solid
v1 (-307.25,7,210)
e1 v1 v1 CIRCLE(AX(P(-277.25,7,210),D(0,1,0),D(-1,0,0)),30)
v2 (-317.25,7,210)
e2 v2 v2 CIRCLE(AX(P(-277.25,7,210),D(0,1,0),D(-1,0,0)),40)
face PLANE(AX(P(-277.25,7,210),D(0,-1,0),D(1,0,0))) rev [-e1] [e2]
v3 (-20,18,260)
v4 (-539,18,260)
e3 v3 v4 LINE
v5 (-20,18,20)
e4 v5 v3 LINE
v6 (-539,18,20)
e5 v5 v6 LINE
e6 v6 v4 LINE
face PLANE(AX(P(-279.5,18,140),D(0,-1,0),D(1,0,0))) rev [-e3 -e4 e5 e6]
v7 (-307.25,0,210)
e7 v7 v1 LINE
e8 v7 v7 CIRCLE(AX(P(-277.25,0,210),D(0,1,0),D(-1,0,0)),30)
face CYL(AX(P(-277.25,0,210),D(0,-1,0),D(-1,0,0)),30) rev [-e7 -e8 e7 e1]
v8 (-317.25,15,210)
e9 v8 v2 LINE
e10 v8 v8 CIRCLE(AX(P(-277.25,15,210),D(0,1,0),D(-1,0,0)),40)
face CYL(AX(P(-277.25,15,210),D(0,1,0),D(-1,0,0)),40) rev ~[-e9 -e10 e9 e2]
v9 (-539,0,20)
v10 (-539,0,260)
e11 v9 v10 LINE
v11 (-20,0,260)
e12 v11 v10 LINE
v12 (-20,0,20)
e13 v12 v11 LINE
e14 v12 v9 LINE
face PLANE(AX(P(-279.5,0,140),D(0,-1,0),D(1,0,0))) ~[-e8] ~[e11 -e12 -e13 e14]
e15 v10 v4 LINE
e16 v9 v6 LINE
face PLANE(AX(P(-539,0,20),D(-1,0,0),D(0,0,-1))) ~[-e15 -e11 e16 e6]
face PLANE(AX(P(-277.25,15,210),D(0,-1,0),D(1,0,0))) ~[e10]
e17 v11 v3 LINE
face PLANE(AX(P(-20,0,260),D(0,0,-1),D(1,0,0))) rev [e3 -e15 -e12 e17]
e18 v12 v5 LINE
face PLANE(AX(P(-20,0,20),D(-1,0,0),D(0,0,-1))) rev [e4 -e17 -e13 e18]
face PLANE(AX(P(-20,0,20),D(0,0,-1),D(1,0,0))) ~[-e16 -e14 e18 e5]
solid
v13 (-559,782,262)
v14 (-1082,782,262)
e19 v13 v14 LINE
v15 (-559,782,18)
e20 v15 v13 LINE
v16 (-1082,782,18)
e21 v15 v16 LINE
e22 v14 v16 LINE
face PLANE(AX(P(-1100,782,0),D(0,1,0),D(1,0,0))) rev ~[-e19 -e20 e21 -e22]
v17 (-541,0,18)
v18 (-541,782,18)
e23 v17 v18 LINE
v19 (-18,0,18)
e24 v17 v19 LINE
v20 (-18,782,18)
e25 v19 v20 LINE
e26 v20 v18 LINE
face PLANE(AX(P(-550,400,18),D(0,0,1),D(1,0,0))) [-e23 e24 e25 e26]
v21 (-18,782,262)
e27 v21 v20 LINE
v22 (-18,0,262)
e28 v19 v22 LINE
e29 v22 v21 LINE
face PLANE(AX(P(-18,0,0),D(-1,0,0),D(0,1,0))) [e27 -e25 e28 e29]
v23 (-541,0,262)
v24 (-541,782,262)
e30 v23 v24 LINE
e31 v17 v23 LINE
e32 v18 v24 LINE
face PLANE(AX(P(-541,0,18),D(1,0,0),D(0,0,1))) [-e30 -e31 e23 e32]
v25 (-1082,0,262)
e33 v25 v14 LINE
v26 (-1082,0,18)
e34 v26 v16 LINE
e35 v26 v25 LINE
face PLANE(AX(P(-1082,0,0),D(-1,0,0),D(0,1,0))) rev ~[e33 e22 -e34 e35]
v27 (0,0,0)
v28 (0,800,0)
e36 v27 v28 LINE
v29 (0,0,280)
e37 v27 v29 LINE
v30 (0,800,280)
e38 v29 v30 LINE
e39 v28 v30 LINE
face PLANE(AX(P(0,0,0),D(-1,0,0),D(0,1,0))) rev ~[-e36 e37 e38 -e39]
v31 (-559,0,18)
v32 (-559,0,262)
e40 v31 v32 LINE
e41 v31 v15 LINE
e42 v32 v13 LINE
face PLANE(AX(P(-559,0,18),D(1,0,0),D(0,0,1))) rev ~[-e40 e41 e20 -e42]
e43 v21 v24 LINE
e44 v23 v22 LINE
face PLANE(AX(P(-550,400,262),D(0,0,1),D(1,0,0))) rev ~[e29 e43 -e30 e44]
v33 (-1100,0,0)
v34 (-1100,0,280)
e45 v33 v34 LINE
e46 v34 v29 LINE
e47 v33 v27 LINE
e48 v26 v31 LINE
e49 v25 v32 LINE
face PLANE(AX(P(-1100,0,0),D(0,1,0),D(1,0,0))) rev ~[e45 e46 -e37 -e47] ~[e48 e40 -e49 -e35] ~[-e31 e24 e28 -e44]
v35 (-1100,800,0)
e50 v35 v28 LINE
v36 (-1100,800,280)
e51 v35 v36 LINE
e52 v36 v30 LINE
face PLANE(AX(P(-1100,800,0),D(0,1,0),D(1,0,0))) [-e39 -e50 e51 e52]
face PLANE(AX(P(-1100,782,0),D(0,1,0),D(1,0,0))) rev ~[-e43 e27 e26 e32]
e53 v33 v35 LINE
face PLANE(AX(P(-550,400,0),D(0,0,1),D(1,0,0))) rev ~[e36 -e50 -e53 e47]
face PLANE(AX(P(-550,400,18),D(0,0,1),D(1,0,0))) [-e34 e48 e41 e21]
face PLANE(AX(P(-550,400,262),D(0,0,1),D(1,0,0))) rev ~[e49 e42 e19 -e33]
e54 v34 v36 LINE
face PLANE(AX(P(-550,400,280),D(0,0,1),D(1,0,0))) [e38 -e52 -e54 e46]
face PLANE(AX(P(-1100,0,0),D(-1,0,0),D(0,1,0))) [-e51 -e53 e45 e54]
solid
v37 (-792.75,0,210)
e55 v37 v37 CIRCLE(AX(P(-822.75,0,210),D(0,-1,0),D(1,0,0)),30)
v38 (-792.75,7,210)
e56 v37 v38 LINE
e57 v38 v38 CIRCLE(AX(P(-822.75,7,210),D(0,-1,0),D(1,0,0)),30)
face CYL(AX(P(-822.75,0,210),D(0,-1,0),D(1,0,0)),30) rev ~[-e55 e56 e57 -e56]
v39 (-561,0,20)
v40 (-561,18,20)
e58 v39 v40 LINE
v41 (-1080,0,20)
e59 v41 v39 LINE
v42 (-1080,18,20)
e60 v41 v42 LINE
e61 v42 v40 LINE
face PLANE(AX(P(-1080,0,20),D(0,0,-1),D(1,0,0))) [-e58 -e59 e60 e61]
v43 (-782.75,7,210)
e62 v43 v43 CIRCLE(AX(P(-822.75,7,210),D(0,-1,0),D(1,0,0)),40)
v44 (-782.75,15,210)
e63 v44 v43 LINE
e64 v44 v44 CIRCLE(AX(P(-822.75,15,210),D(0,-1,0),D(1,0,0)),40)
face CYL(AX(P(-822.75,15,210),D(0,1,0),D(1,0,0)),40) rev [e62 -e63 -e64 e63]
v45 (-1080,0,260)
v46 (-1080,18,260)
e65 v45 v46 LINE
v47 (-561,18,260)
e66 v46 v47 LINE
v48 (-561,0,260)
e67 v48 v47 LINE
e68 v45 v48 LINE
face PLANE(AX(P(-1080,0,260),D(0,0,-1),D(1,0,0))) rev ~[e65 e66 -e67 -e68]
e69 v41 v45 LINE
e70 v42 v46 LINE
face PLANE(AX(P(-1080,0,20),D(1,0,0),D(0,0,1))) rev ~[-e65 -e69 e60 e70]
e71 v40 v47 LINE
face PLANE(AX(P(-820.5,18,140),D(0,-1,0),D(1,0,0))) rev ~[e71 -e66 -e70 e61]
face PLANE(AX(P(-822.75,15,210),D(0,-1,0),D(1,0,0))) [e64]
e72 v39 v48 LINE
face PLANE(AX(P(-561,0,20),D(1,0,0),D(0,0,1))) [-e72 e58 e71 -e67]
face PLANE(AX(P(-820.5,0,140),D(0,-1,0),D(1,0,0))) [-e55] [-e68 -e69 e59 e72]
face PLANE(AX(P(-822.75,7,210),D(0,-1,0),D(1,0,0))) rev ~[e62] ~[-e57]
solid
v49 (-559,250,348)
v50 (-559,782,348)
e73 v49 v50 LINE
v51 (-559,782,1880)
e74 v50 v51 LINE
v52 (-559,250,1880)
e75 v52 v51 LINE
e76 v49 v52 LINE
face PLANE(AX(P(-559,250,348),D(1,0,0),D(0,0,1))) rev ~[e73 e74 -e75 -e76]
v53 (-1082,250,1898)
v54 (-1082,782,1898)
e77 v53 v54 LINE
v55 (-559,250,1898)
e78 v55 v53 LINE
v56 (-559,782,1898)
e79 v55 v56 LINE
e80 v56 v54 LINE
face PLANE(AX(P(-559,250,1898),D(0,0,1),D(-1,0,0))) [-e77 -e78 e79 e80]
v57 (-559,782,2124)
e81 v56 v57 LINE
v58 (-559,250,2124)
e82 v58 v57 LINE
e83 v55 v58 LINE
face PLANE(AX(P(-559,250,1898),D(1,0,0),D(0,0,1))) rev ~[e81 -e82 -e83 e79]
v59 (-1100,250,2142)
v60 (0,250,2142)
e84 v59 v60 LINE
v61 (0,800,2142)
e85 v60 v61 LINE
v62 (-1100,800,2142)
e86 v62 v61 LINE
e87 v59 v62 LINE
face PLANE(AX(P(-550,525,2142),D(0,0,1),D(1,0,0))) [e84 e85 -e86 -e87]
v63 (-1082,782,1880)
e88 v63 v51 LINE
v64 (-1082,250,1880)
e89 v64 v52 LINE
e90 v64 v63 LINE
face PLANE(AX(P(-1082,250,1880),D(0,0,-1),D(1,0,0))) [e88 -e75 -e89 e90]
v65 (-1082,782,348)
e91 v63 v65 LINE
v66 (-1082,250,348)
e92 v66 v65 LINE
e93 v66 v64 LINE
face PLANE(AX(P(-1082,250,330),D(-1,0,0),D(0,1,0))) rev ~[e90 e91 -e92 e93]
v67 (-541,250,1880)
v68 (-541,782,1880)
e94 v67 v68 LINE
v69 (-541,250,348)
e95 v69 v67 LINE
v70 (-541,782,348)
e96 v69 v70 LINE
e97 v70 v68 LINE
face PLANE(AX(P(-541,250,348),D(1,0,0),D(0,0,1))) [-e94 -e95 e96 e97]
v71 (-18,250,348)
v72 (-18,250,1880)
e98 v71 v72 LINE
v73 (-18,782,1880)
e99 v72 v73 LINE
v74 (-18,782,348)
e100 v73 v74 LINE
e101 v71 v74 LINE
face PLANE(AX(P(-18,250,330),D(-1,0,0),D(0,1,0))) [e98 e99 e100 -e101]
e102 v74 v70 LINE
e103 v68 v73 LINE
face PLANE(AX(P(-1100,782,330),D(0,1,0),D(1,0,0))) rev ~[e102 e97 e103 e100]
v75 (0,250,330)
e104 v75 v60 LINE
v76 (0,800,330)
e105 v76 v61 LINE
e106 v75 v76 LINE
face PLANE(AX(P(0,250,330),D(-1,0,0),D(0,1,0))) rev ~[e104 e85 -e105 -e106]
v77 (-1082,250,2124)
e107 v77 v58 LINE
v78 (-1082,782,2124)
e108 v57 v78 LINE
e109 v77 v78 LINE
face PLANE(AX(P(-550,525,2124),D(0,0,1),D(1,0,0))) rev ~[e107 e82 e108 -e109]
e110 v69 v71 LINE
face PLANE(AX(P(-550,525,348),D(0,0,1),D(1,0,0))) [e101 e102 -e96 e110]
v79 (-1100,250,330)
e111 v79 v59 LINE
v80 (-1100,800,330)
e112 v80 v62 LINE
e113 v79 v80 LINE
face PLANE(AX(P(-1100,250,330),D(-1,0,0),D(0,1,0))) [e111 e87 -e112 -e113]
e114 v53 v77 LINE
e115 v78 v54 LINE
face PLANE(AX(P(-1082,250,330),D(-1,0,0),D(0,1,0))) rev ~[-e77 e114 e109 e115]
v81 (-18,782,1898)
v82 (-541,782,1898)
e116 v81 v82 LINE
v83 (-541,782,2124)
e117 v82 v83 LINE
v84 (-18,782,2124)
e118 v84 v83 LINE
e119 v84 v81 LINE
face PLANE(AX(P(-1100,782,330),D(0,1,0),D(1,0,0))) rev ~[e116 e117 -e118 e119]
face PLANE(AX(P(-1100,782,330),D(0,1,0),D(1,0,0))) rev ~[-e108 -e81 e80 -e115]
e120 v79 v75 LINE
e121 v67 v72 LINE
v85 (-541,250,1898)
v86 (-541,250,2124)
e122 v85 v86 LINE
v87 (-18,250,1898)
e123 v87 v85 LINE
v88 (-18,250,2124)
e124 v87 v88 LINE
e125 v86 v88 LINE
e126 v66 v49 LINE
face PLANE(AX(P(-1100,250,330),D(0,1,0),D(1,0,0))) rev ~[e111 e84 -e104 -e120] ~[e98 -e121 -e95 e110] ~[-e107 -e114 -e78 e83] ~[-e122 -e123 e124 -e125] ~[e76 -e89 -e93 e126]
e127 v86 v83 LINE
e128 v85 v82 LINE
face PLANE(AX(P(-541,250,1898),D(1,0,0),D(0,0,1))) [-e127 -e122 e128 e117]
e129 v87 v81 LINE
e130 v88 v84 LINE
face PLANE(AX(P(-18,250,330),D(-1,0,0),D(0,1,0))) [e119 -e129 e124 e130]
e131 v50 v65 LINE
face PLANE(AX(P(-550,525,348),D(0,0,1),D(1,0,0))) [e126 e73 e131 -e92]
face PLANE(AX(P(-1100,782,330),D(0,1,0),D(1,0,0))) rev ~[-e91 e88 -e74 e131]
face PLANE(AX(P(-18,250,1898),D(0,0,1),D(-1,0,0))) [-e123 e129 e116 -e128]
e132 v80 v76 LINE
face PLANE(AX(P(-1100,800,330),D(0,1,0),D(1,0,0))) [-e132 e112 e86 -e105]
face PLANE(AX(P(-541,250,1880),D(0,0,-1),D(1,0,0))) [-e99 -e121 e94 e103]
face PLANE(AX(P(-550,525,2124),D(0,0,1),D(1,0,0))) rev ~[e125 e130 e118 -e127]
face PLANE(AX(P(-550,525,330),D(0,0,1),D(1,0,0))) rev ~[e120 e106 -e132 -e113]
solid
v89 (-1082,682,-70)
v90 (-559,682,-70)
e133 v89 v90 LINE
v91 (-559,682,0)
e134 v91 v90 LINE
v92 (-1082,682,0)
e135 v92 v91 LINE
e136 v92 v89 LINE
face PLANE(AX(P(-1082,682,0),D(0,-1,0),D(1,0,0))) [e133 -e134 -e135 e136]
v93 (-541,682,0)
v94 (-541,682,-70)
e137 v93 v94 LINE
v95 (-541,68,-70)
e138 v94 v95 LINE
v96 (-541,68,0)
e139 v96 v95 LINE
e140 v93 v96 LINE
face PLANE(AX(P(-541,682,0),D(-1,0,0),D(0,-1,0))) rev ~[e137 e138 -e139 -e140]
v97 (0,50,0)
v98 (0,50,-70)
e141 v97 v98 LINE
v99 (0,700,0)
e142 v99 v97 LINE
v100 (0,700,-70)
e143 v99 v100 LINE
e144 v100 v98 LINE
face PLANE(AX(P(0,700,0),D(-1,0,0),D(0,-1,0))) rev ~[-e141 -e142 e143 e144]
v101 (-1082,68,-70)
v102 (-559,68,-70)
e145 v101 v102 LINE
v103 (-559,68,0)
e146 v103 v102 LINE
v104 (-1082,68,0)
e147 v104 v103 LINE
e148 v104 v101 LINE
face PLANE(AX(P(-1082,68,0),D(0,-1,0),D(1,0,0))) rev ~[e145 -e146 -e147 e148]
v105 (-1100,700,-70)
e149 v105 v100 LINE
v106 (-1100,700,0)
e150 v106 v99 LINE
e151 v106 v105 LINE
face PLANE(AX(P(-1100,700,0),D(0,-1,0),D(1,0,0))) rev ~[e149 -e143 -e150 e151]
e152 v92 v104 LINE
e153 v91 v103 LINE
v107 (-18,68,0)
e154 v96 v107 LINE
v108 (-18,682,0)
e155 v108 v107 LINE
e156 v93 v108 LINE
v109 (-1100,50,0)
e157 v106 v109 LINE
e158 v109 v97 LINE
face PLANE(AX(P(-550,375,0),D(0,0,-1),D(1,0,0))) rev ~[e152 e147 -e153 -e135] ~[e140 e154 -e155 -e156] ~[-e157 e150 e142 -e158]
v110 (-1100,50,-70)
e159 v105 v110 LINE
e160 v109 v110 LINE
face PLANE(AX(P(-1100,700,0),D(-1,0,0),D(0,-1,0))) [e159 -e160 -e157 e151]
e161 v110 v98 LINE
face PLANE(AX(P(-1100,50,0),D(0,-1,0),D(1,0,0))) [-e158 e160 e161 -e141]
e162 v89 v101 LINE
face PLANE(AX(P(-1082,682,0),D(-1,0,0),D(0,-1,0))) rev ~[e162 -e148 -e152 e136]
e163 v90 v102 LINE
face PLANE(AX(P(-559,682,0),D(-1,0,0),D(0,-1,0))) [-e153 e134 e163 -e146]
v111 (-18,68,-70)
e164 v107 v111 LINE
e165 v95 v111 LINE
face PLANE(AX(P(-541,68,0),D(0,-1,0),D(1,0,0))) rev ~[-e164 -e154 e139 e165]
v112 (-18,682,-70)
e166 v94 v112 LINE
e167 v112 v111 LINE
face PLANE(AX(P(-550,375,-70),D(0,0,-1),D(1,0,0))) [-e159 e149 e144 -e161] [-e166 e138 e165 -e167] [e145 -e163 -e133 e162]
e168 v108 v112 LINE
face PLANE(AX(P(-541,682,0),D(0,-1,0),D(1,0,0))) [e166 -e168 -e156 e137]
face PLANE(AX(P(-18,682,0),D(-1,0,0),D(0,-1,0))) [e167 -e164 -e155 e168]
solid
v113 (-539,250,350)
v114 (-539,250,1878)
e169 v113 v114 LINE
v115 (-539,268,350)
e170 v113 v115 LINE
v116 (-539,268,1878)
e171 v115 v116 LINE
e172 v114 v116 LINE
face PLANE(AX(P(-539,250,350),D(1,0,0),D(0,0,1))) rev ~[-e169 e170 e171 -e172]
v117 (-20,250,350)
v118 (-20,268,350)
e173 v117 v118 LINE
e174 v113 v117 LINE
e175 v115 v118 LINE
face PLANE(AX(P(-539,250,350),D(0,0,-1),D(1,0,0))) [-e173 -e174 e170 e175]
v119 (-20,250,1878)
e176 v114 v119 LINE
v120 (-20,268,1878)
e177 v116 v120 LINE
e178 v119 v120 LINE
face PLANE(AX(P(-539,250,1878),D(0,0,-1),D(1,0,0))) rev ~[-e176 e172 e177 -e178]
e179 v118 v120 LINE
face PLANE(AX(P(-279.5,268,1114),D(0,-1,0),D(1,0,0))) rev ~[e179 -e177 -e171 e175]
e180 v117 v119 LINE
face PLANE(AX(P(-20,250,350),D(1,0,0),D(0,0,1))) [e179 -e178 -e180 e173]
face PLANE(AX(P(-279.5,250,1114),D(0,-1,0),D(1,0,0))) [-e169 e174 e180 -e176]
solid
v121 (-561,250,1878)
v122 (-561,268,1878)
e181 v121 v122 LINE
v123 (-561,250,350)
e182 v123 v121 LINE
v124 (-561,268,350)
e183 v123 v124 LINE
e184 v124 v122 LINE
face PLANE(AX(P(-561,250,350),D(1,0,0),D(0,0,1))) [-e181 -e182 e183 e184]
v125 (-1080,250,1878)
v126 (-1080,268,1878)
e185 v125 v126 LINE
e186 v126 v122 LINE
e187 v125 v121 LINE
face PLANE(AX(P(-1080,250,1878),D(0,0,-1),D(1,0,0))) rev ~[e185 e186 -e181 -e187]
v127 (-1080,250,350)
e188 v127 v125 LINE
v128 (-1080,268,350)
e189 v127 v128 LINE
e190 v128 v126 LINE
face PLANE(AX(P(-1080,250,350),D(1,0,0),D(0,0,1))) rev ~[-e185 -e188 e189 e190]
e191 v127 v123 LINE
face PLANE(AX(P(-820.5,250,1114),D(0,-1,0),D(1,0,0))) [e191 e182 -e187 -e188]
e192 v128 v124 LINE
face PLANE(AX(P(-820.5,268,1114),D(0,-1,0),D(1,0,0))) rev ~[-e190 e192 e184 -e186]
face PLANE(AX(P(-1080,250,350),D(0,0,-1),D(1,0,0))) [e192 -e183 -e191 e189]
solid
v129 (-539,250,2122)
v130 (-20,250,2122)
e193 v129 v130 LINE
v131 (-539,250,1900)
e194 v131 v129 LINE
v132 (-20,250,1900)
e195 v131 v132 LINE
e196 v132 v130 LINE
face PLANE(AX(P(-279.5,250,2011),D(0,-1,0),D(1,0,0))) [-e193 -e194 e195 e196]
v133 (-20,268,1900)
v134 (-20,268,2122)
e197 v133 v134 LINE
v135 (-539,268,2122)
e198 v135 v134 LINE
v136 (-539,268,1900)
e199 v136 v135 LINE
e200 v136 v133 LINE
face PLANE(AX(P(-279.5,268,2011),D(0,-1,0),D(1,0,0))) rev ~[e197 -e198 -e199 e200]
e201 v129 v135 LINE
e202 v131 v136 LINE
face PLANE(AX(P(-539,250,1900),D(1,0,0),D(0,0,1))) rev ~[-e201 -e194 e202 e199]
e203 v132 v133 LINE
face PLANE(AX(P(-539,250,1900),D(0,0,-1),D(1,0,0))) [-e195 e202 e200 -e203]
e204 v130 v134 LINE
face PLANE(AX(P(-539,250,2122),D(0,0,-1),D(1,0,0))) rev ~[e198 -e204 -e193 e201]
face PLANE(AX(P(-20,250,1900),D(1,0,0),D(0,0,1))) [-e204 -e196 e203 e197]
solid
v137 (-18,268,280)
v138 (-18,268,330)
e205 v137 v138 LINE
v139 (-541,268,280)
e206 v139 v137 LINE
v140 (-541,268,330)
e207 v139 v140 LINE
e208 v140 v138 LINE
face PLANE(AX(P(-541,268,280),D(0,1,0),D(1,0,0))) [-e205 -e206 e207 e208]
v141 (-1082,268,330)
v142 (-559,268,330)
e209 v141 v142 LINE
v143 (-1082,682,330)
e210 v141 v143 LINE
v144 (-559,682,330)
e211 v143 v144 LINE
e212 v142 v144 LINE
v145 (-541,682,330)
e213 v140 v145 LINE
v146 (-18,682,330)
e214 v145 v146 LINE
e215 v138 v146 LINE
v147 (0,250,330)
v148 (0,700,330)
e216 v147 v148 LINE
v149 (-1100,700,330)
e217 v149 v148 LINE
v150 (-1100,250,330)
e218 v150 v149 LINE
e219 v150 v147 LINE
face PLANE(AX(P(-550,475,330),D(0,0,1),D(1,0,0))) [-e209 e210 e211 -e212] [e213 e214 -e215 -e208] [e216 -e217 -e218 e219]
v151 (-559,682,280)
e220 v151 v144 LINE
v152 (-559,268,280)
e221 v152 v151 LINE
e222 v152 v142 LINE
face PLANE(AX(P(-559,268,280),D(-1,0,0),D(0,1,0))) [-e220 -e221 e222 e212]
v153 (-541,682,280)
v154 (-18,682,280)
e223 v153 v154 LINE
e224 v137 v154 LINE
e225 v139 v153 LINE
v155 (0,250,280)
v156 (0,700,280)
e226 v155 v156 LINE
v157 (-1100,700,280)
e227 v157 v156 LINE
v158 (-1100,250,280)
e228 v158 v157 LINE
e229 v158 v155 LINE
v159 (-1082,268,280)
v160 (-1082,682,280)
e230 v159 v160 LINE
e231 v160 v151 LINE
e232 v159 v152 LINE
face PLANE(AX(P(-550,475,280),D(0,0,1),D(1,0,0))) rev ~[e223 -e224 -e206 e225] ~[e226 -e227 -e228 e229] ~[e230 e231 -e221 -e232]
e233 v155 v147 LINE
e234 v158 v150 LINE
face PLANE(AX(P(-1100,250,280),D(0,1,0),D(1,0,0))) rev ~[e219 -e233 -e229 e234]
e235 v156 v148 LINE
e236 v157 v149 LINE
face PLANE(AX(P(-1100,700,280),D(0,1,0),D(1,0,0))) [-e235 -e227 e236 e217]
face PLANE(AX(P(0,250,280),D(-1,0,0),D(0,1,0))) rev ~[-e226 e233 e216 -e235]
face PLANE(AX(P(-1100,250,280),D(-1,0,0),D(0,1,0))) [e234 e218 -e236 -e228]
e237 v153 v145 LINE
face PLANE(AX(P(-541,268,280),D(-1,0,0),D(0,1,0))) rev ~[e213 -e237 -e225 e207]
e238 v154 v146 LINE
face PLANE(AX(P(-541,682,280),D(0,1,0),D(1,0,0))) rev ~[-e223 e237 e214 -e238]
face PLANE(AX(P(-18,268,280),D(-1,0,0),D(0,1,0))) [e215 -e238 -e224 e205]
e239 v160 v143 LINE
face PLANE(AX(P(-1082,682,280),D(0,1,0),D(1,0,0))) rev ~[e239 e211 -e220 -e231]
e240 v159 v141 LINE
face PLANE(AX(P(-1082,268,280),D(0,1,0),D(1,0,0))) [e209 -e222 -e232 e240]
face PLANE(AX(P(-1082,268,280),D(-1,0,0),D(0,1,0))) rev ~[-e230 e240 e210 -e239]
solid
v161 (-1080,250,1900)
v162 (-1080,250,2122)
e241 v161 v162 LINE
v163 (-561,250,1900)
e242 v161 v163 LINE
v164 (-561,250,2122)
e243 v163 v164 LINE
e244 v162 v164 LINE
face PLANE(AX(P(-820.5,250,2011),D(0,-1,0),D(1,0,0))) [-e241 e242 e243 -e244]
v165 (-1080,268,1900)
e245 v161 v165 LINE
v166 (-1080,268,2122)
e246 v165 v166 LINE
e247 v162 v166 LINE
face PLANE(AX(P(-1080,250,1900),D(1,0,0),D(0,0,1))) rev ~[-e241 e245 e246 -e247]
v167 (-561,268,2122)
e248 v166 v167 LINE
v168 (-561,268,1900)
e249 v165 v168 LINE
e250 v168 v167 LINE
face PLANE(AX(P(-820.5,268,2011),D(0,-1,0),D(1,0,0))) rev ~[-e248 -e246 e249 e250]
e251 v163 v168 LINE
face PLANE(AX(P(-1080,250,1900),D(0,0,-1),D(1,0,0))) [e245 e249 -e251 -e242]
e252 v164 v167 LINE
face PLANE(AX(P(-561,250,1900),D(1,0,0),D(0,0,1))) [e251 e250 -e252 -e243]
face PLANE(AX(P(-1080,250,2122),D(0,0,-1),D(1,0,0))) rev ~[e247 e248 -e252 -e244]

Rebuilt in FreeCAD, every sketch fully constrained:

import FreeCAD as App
import Part
import Sketcher

V = App.Vector
Q = App.Units.Quantity


def faces_at(feature, points):
    """Names of the faces that lie closest to the given points."""
    faces = feature.Shape.Faces
    near = lambda p: min(range(len(faces)), key=lambda i: faces[i].distToShape(Part.Vertex(*p))[0])
    return sorted({f"Face{near(p) + 1}" for p in points})

doc = App.newDocument("Part")
params = doc.addObject("Spreadsheet::Sheet", "Params")
for row, (alias, value) in enumerate([
    ("sketch1_width", "1100 mm"),
    ("sketch1_height", "800 mm"),
    ("pad1_length", "280 mm"),
    ("thickness_wall", "18 mm"),
    ("sketch2_width", "18 mm"),
    ("sketch2_height", "244 mm"),
    ("sketch3_width", "519 mm"),
    ("sketch3_height", "240 mm"),
    ("pad3_length", "18 mm"),
    ("sketch4_diameter", "60 mm"),
    ("pocket1_length", "15 mm"),
    ("sketch5_diameter", "80 mm"),
    ("pocket2_length", "8 mm"),
    ("sketch6_width", "1100 mm"),
    ("sketch6_width2", "523 mm"),
    ("sketch6_height", "650 mm"),
    ("sketch6_height2", "614 mm"),
    ("pad4_length", "70 mm"),
    ("sketch7_width", "1100 mm"),
    ("sketch7_width2", "523 mm"),
    ("sketch7_height", "450 mm"),
    ("sketch7_height2", "414 mm"),
    ("pad5_length", "50 mm"),
    ("sketch8_width", "1100 mm"),
    ("sketch8_height", "550 mm"),
    ("pad6_length", "1812 mm"),
    ("thickness2_wall", "18 mm"),
    ("sketch9_width", "18 mm"),
    ("sketch9_width2", "523 mm"),
    ("sketch9_height", "1532 mm"),
    ("sketch9_height2", "226 mm"),
    ("sketch10_width", "519 mm"),
    ("sketch10_height", "1528 mm"),
    ("pad8_length", "18 mm"),
    ("sketch11_width", "519 mm"),
    ("sketch11_height", "222 mm"),
    ("pad9_length", "18 mm"),
    ("sketch12_width", "519 mm"),
    ("sketch12_height", "222 mm"),
    ("pad10_length", "18 mm"),
    ("sketch13_width", "519 mm"),
    ("sketch13_height", "1528 mm"),
    ("pad11_length", "18 mm"),
], start=1):
    params.set(f"A{row}", alias)
    params.set(f"B{row}", "=" + value)
    params.setAlias(f"B{row}", alias)

body = doc.addObject("PartDesign::Body", "Body")

sketch1 = doc.addObject("Sketcher::SketchObject", "Sketch")
body.addObject(sketch1)
sketch1.AttachmentSupport = (doc.XY_Plane, [""])
sketch1.MapMode = "FlatFace"
sketch1.addGeometry(Part.LineSegment(V(-1100, 800, 0), V(-1100, 0, 0)), False)
sketch1.addGeometry(Part.LineSegment(V(-1100, 0, 0), V(0, 0, 0)), False)
sketch1.addGeometry(Part.LineSegment(V(0, 0, 0), V(0, 800, 0)), False)
sketch1.addGeometry(Part.LineSegment(V(0, 800, 0), V(-1100, 800, 0)), False)
sketch1.addConstraint(Sketcher.Constraint("Coincident", 0, 2, 1, 1))
sketch1.addConstraint(Sketcher.Constraint("Coincident", 1, 2, 2, 1))
sketch1.addConstraint(Sketcher.Constraint("Coincident", 2, 2, 3, 1))
sketch1.addConstraint(Sketcher.Constraint("Coincident", 3, 2, 0, 1))
sketch1.addConstraint(Sketcher.Constraint("Vertical", 0))
sketch1.addConstraint(Sketcher.Constraint("Horizontal", 1))
sketch1.addConstraint(Sketcher.Constraint("Vertical", 2))
sketch1.addConstraint(Sketcher.Constraint("Horizontal", 3))
sketch1.addConstraint(Sketcher.Constraint("Coincident", 1, 2, -1, 1))
sketch1.addConstraint(Sketcher.Constraint("DistanceX", 1, 1, 1, 2, Q("1100 mm")))
sketch1.addConstraint(Sketcher.Constraint("DistanceY", 0, 2, 0, 1, Q("800 mm")))
sketch1.setExpression("Constraints[9]", "Params.sketch1_width")
sketch1.setExpression("Constraints[10]", "Params.sketch1_height")
pad1 = doc.addObject("PartDesign::Pad", "Pad")
body.addObject(pad1)
pad1.Profile = sketch1
pad1.setExpression("Length", "Params.pad1_length")
doc.recompute()

thickness = doc.addObject("PartDesign::Thickness", "Thickness")
body.addObject(thickness)
thickness.Base = (pad1, faces_at(pad1, [(-550, 0, 140)]))
thickness.setExpression("Value", "Params.thickness_wall")
thickness.Reversed = True
thickness.Join = "Arc"

sketch2 = doc.addObject("Sketcher::SketchObject", "Sketch001")
body.addObject(sketch2)
sketch2.AttachmentSupport = (doc.XZ_Plane, [""])
sketch2.MapMode = "FlatFace"
sketch2.addGeometry(Part.LineSegment(V(-559, 262, 0), V(-559, 18, 0)), False)
sketch2.addGeometry(Part.LineSegment(V(-559, 18, 0), V(-541, 18, 0)), False)
sketch2.addGeometry(Part.LineSegment(V(-541, 18, 0), V(-541, 262, 0)), False)
sketch2.addGeometry(Part.LineSegment(V(-541, 262, 0), V(-559, 262, 0)), False)
sketch2.addConstraint(Sketcher.Constraint("Coincident", 0, 2, 1, 1))
sketch2.addConstraint(Sketcher.Constraint("Coincident", 1, 2, 2, 1))
sketch2.addConstraint(Sketcher.Constraint("Coincident", 2, 2, 3, 1))
sketch2.addConstraint(Sketcher.Constraint("Coincident", 3, 2, 0, 1))
sketch2.addConstraint(Sketcher.Constraint("Vertical", 0))
sketch2.addConstraint(Sketcher.Constraint("Horizontal", 1))
sketch2.addConstraint(Sketcher.Constraint("Vertical", 2))
sketch2.addConstraint(Sketcher.Constraint("Horizontal", 3))
sketch2.addConstraint(Sketcher.Constraint("DistanceX", 1, 1, 1, 2, Q("18 mm")))
sketch2.addConstraint(Sketcher.Constraint("DistanceY", 0, 2, 0, 1, Q("244 mm")))
sketch2.addConstraint(Sketcher.Constraint("DistanceX", 0, 2, -1, 1, Q("559 mm")))
sketch2.addConstraint(Sketcher.Constraint("DistanceY", -1, 1, 0, 2, Q("18 mm")))
sketch2.setExpression("Constraints[8]", "Params.sketch2_width")
sketch2.setExpression("Constraints[9]", "Params.sketch2_height")
pad2 = doc.addObject("PartDesign::Pad", "Pad001")
body.addObject(pad2)
pad2.Profile = sketch2
pad2.Type = "UpToLast"
pad2.Reversed = True
body2 = doc.addObject("PartDesign::Body", "Body001")

sketch3 = doc.addObject("Sketcher::SketchObject", "Sketch002")
body2.addObject(sketch3)
sketch3.AttachmentSupport = (doc.getObject("XZ_Plane001"), [""])
sketch3.MapMode = "FlatFace"
sketch3.addGeometry(Part.LineSegment(V(-1080, 260, 0), V(-1080, 20, 0)), False)
sketch3.addGeometry(Part.LineSegment(V(-1080, 20, 0), V(-561, 20, 0)), False)
sketch3.addGeometry(Part.LineSegment(V(-561, 20, 0), V(-561, 260, 0)), False)
sketch3.addGeometry(Part.LineSegment(V(-561, 260, 0), V(-1080, 260, 0)), False)
sketch3.addConstraint(Sketcher.Constraint("Coincident", 0, 2, 1, 1))
sketch3.addConstraint(Sketcher.Constraint("Coincident", 1, 2, 2, 1))
sketch3.addConstraint(Sketcher.Constraint("Coincident", 2, 2, 3, 1))
sketch3.addConstraint(Sketcher.Constraint("Coincident", 3, 2, 0, 1))
sketch3.addConstraint(Sketcher.Constraint("Vertical", 0))
sketch3.addConstraint(Sketcher.Constraint("Horizontal", 1))
sketch3.addConstraint(Sketcher.Constraint("Vertical", 2))
sketch3.addConstraint(Sketcher.Constraint("Horizontal", 3))
sketch3.addConstraint(Sketcher.Constraint("DistanceX", 1, 1, 1, 2, Q("519 mm")))
sketch3.addConstraint(Sketcher.Constraint("DistanceY", 0, 2, 0, 1, Q("240 mm")))
sketch3.addConstraint(Sketcher.Constraint("DistanceX", 0, 2, -1, 1, Q("1080 mm")))
sketch3.addConstraint(Sketcher.Constraint("DistanceY", -1, 1, 0, 2, Q("20 mm")))
sketch3.setExpression("Constraints[8]", "Params.sketch3_width")
sketch3.setExpression("Constraints[9]", "Params.sketch3_height")
pad3 = doc.addObject("PartDesign::Pad", "Pad002")
body2.addObject(pad3)
pad3.Profile = sketch3
pad3.setExpression("Length", "Params.pad3_length")
pad3.Reversed = True

sketch4 = doc.addObject("Sketcher::SketchObject", "Sketch003")
body2.addObject(sketch4)
sketch4.AttachmentSupport = (doc.getObject("XZ_Plane001"), [""])
sketch4.MapMode = "FlatFace"
sketch4.addGeometry(Part.Circle(V(-822.75, 210, 0), V(0, 0, 1), 30), False)
sketch4.addConstraint(Sketcher.Constraint("Diameter", 0, Q("60 mm")))
sketch4.addConstraint(Sketcher.Constraint("DistanceY", -1, 1, 0, 3, Q("210 mm")))
sketch4.addConstraint(Sketcher.Constraint("DistanceX", 0, 3, -1, 1, Q("822.75 mm")))
sketch4.setExpression("Constraints[0]", "Params.sketch4_diameter")
pocket1 = doc.addObject("PartDesign::Pocket", "Pocket")
body2.addObject(pocket1)
pocket1.Profile = sketch4
pocket1.setExpression("Length", "Params.pocket1_length")

sketch5 = doc.addObject("Sketcher::SketchObject", "Sketch004")
body2.addObject(sketch5)
sketch5.AttachmentSupport = (doc.getObject("XZ_Plane001"), [""])
sketch5.MapMode = "FlatFace"
sketch5.AttachmentOffset = App.Placement(V(0, 0, -15), App.Rotation())
sketch5.addGeometry(Part.Circle(V(-822.75, 210, 0), V(0, 0, 1), 40), False)
sketch5.addConstraint(Sketcher.Constraint("Diameter", 0, Q("80 mm")))
sketch5.addConstraint(Sketcher.Constraint("DistanceY", -1, 1, 0, 3, Q("210 mm")))
sketch5.addConstraint(Sketcher.Constraint("DistanceX", 0, 3, -1, 1, Q("822.75 mm")))
sketch5.setExpression("Constraints[0]", "Params.sketch5_diameter")
pocket2 = doc.addObject("PartDesign::Pocket", "Pocket001")
body2.addObject(pocket2)
pocket2.Profile = sketch5
pocket2.setExpression("Length", "Params.pocket2_length")
pocket2.Reversed = True
body3 = doc.addObject("PartDesign::Body", "Body002")
doc.recompute()

mirroring = doc.addObject("Part::Mirroring", "Mirroring")
mirroring.Source = body2
mirroring.Base = V(-550, 400, 140)
mirroring.Normal = V(1, 0, 0)
body3.BaseFeature = mirroring
doc.recompute()
body4 = doc.addObject("PartDesign::Body", "Body003")

sketch6 = doc.addObject("Sketcher::SketchObject", "Sketch005")
body4.addObject(sketch6)
sketch6.AttachmentSupport = (doc.getObject("XY_Plane003"), [""])
sketch6.MapMode = "FlatFace"
sketch6.addGeometry(Part.LineSegment(V(-1100, 50, 0), V(-1100, 700, 0)), False)
sketch6.addGeometry(Part.LineSegment(V(-1100, 700, 0), V(0, 700, 0)), False)
sketch6.addGeometry(Part.LineSegment(V(0, 700, 0), V(0, 50, 0)), False)
sketch6.addGeometry(Part.LineSegment(V(0, 50, 0), V(-1100, 50, 0)), False)
sketch6.addGeometry(Part.LineSegment(V(-559, 682, 0), V(-1082, 682, 0)), False)
sketch6.addGeometry(Part.LineSegment(V(-1082, 682, 0), V(-1082, 68, 0)), False)
sketch6.addGeometry(Part.LineSegment(V(-1082, 68, 0), V(-559, 68, 0)), False)
sketch6.addGeometry(Part.LineSegment(V(-559, 68, 0), V(-559, 682, 0)), False)
sketch6.addGeometry(Part.LineSegment(V(-18, 682, 0), V(-541, 682, 0)), False)
sketch6.addGeometry(Part.LineSegment(V(-541, 682, 0), V(-541, 68, 0)), False)
sketch6.addGeometry(Part.LineSegment(V(-541, 68, 0), V(-18, 68, 0)), False)
sketch6.addGeometry(Part.LineSegment(V(-18, 68, 0), V(-18, 682, 0)), False)
sketch6.addConstraint(Sketcher.Constraint("Coincident", 0, 2, 1, 1))
sketch6.addConstraint(Sketcher.Constraint("Coincident", 1, 2, 2, 1))
sketch6.addConstraint(Sketcher.Constraint("Coincident", 2, 2, 3, 1))
sketch6.addConstraint(Sketcher.Constraint("Coincident", 3, 2, 0, 1))
sketch6.addConstraint(Sketcher.Constraint("Coincident", 4, 2, 5, 1))
sketch6.addConstraint(Sketcher.Constraint("Coincident", 5, 2, 6, 1))
sketch6.addConstraint(Sketcher.Constraint("Coincident", 6, 2, 7, 1))
sketch6.addConstraint(Sketcher.Constraint("Coincident", 7, 2, 4, 1))
sketch6.addConstraint(Sketcher.Constraint("Coincident", 8, 2, 9, 1))
sketch6.addConstraint(Sketcher.Constraint("Coincident", 9, 2, 10, 1))
sketch6.addConstraint(Sketcher.Constraint("Coincident", 10, 2, 11, 1))
sketch6.addConstraint(Sketcher.Constraint("Coincident", 11, 2, 8, 1))
sketch6.addConstraint(Sketcher.Constraint("Vertical", 0))
sketch6.addConstraint(Sketcher.Constraint("Horizontal", 1))
sketch6.addConstraint(Sketcher.Constraint("Vertical", 2))
sketch6.addConstraint(Sketcher.Constraint("Horizontal", 3))
sketch6.addConstraint(Sketcher.Constraint("Horizontal", 4))
sketch6.addConstraint(Sketcher.Constraint("Vertical", 5))
sketch6.addConstraint(Sketcher.Constraint("Horizontal", 6))
sketch6.addConstraint(Sketcher.Constraint("Vertical", 7))
sketch6.addConstraint(Sketcher.Constraint("Horizontal", 8))
sketch6.addConstraint(Sketcher.Constraint("Vertical", 9))
sketch6.addConstraint(Sketcher.Constraint("Horizontal", 10))
sketch6.addConstraint(Sketcher.Constraint("Vertical", 11))
sketch6.addConstraint(Sketcher.Constraint("PointOnObject", 1, 2, -2))
sketch6.addConstraint(Sketcher.Constraint("Horizontal", 7, 2, 8, 2))
sketch6.addConstraint(Sketcher.Constraint("Horizontal", 6, 2, 9, 2))
sketch6.addConstraint(Sketcher.Constraint("Equal", 6, 8))
sketch6.addConstraint(Sketcher.Constraint("DistanceX", 1, 1, 1, 2, Q("1100 mm")))
sketch6.addConstraint(Sketcher.Constraint("DistanceX", 4, 2, 4, 1, Q("523 mm")))
sketch6.addConstraint(Sketcher.Constraint("DistanceY", 0, 1, 0, 2, Q("650 mm")))
sketch6.addConstraint(Sketcher.Constraint("DistanceY", 5, 2, 5, 1, Q("614 mm")))
sketch6.addConstraint(Sketcher.Constraint("DistanceY", -1, 1, 0, 2, Q("700 mm")))
sketch6.addConstraint(Sketcher.Constraint("DistanceX", 4, 2, -1, 1, Q("1082 mm")))
sketch6.addConstraint(Sketcher.Constraint("DistanceY", -1, 1, 4, 2, Q("682 mm")))
sketch6.addConstraint(Sketcher.Constraint("DistanceX", 8, 2, -1, 1, Q("541 mm")))
sketch6.setExpression("Constraints[28]", "Params.sketch6_width")
sketch6.setExpression("Constraints[29]", "Params.sketch6_width2")
sketch6.setExpression("Constraints[30]", "Params.sketch6_height")
sketch6.setExpression("Constraints[31]", "Params.sketch6_height2")
pad4 = doc.addObject("PartDesign::Pad", "Pad003")
body4.addObject(pad4)
pad4.Profile = sketch6
pad4.setExpression("Length", "Params.pad4_length")
pad4.Reversed = True
body5 = doc.addObject("PartDesign::Body", "Body004")

sketch7 = doc.addObject("Sketcher::SketchObject", "Sketch006")
body5.addObject(sketch7)
sketch7.AttachmentSupport = (doc.getObject("XY_Plane004"), [""])
sketch7.MapMode = "FlatFace"
sketch7.AttachmentOffset = App.Placement(V(0, 0, 280), App.Rotation())
sketch7.addGeometry(Part.LineSegment(V(-1100, 700, 0), V(-1100, 250, 0)), False)
sketch7.addGeometry(Part.LineSegment(V(-1100, 250, 0), V(0, 250, 0)), False)
sketch7.addGeometry(Part.LineSegment(V(0, 250, 0), V(0, 700, 0)), False)
sketch7.addGeometry(Part.LineSegment(V(0, 700, 0), V(-1100, 700, 0)), False)
sketch7.addGeometry(Part.LineSegment(V(-559, 268, 0), V(-1082, 268, 0)), False)
sketch7.addGeometry(Part.LineSegment(V(-1082, 268, 0), V(-1082, 682, 0)), False)
sketch7.addGeometry(Part.LineSegment(V(-1082, 682, 0), V(-559, 682, 0)), False)
sketch7.addGeometry(Part.LineSegment(V(-559, 682, 0), V(-559, 268, 0)), False)
sketch7.addGeometry(Part.LineSegment(V(-18, 268, 0), V(-541, 268, 0)), False)
sketch7.addGeometry(Part.LineSegment(V(-541, 268, 0), V(-541, 682, 0)), False)
sketch7.addGeometry(Part.LineSegment(V(-541, 682, 0), V(-18, 682, 0)), False)
sketch7.addGeometry(Part.LineSegment(V(-18, 682, 0), V(-18, 268, 0)), False)
sketch7.addConstraint(Sketcher.Constraint("Coincident", 0, 2, 1, 1))
sketch7.addConstraint(Sketcher.Constraint("Coincident", 1, 2, 2, 1))
sketch7.addConstraint(Sketcher.Constraint("Coincident", 2, 2, 3, 1))
sketch7.addConstraint(Sketcher.Constraint("Coincident", 3, 2, 0, 1))
sketch7.addConstraint(Sketcher.Constraint("Coincident", 4, 2, 5, 1))
sketch7.addConstraint(Sketcher.Constraint("Coincident", 5, 2, 6, 1))
sketch7.addConstraint(Sketcher.Constraint("Coincident", 6, 2, 7, 1))
sketch7.addConstraint(Sketcher.Constraint("Coincident", 7, 2, 4, 1))
sketch7.addConstraint(Sketcher.Constraint("Coincident", 8, 2, 9, 1))
sketch7.addConstraint(Sketcher.Constraint("Coincident", 9, 2, 10, 1))
sketch7.addConstraint(Sketcher.Constraint("Coincident", 10, 2, 11, 1))
sketch7.addConstraint(Sketcher.Constraint("Coincident", 11, 2, 8, 1))
sketch7.addConstraint(Sketcher.Constraint("Vertical", 0))
sketch7.addConstraint(Sketcher.Constraint("Horizontal", 1))
sketch7.addConstraint(Sketcher.Constraint("Vertical", 2))
sketch7.addConstraint(Sketcher.Constraint("Horizontal", 3))
sketch7.addConstraint(Sketcher.Constraint("Horizontal", 4))
sketch7.addConstraint(Sketcher.Constraint("Vertical", 5))
sketch7.addConstraint(Sketcher.Constraint("Horizontal", 6))
sketch7.addConstraint(Sketcher.Constraint("Vertical", 7))
sketch7.addConstraint(Sketcher.Constraint("Horizontal", 8))
sketch7.addConstraint(Sketcher.Constraint("Vertical", 9))
sketch7.addConstraint(Sketcher.Constraint("Horizontal", 10))
sketch7.addConstraint(Sketcher.Constraint("Vertical", 11))
sketch7.addConstraint(Sketcher.Constraint("PointOnObject", 1, 2, -2))
sketch7.addConstraint(Sketcher.Constraint("Horizontal", 7, 2, 8, 2))
sketch7.addConstraint(Sketcher.Constraint("Horizontal", 6, 2, 9, 2))
sketch7.addConstraint(Sketcher.Constraint("Equal", 6, 8))
sketch7.addConstraint(Sketcher.Constraint("DistanceX", 1, 1, 1, 2, Q("1100 mm")))
sketch7.addConstraint(Sketcher.Constraint("DistanceX", 4, 2, 4, 1, Q("523 mm")))
sketch7.addConstraint(Sketcher.Constraint("DistanceY", 0, 2, 0, 1, Q("450 mm")))
sketch7.addConstraint(Sketcher.Constraint("DistanceY", 5, 1, 5, 2, Q("414 mm")))
sketch7.addConstraint(Sketcher.Constraint("DistanceY", -1, 1, 0, 2, Q("250 mm")))
sketch7.addConstraint(Sketcher.Constraint("DistanceX", 4, 2, -1, 1, Q("1082 mm")))
sketch7.addConstraint(Sketcher.Constraint("DistanceY", -1, 1, 4, 2, Q("268 mm")))
sketch7.addConstraint(Sketcher.Constraint("DistanceX", 8, 2, -1, 1, Q("541 mm")))
sketch7.setExpression("Constraints[28]", "Params.sketch7_width")
sketch7.setExpression("Constraints[29]", "Params.sketch7_width2")
sketch7.setExpression("Constraints[30]", "Params.sketch7_height")
sketch7.setExpression("Constraints[31]", "Params.sketch7_height2")
pad5 = doc.addObject("PartDesign::Pad", "Pad004")
body5.addObject(pad5)
pad5.Profile = sketch7
pad5.setExpression("Length", "Params.pad5_length")
body6 = doc.addObject("PartDesign::Body", "Body005")

sketch8 = doc.addObject("Sketcher::SketchObject", "Sketch007")
body6.addObject(sketch8)
sketch8.AttachmentSupport = (doc.getObject("XY_Plane005"), [""])
sketch8.MapMode = "FlatFace"
sketch8.AttachmentOffset = App.Placement(V(0, 0, 330), App.Rotation())
sketch8.addGeometry(Part.LineSegment(V(-1100, 800, 0), V(-1100, 250, 0)), False)
sketch8.addGeometry(Part.LineSegment(V(-1100, 250, 0), V(0, 250, 0)), False)
sketch8.addGeometry(Part.LineSegment(V(0, 250, 0), V(0, 800, 0)), False)
sketch8.addGeometry(Part.LineSegment(V(0, 800, 0), V(-1100, 800, 0)), False)
sketch8.addConstraint(Sketcher.Constraint("Coincident", 0, 2, 1, 1))
sketch8.addConstraint(Sketcher.Constraint("Coincident", 1, 2, 2, 1))
sketch8.addConstraint(Sketcher.Constraint("Coincident", 2, 2, 3, 1))
sketch8.addConstraint(Sketcher.Constraint("Coincident", 3, 2, 0, 1))
sketch8.addConstraint(Sketcher.Constraint("Vertical", 0))
sketch8.addConstraint(Sketcher.Constraint("Horizontal", 1))
sketch8.addConstraint(Sketcher.Constraint("Vertical", 2))
sketch8.addConstraint(Sketcher.Constraint("Horizontal", 3))
sketch8.addConstraint(Sketcher.Constraint("PointOnObject", 1, 2, -2))
sketch8.addConstraint(Sketcher.Constraint("DistanceX", 1, 1, 1, 2, Q("1100 mm")))
sketch8.addConstraint(Sketcher.Constraint("DistanceY", 0, 2, 0, 1, Q("550 mm")))
sketch8.addConstraint(Sketcher.Constraint("DistanceY", -1, 1, 0, 2, Q("250 mm")))
sketch8.setExpression("Constraints[9]", "Params.sketch8_width")
sketch8.setExpression("Constraints[10]", "Params.sketch8_height")
pad6 = doc.addObject("PartDesign::Pad", "Pad005")
body6.addObject(pad6)
pad6.Profile = sketch8
pad6.setExpression("Length", "Params.pad6_length")
doc.recompute()

thickness2 = doc.addObject("PartDesign::Thickness", "Thickness001")
body6.addObject(thickness2)
thickness2.Base = (pad6, faces_at(pad6, [(-550, 250, 1236)]))
thickness2.setExpression("Value", "Params.thickness2_wall")
thickness2.Reversed = True
thickness2.Join = "Arc"

sketch9 = doc.addObject("Sketcher::SketchObject", "Sketch008")
body6.addObject(sketch9)
sketch9.AttachmentSupport = (doc.getObject("XZ_Plane005"), [""])
sketch9.MapMode = "FlatFace"
sketch9.AttachmentOffset = App.Placement(V(0, 0, -250), App.Rotation())
sketch9.addGeometry(Part.LineSegment(V(-559, 1880, 0), V(-559, 348, 0)), False)
sketch9.addGeometry(Part.LineSegment(V(-559, 348, 0), V(-541, 348, 0)), False)
sketch9.addGeometry(Part.LineSegment(V(-541, 348, 0), V(-541, 1880, 0)), False)
sketch9.addGeometry(Part.LineSegment(V(-541, 1880, 0), V(-18, 1880, 0)), False)
sketch9.addGeometry(Part.LineSegment(V(-18, 1880, 0), V(-18, 1898, 0)), False)
sketch9.addGeometry(Part.LineSegment(V(-18, 1898, 0), V(-541, 1898, 0)), False)
sketch9.addGeometry(Part.LineSegment(V(-541, 1898, 0), V(-541, 2124, 0)), False)
sketch9.addGeometry(Part.LineSegment(V(-541, 2124, 0), V(-559, 2124, 0)), False)
sketch9.addGeometry(Part.LineSegment(V(-559, 2124, 0), V(-559, 1898, 0)), False)
sketch9.addGeometry(Part.LineSegment(V(-559, 1898, 0), V(-1082, 1898, 0)), False)
sketch9.addGeometry(Part.LineSegment(V(-1082, 1898, 0), V(-1082, 1880, 0)), False)
sketch9.addGeometry(Part.LineSegment(V(-1082, 1880, 0), V(-559, 1880, 0)), False)
sketch9.addConstraint(Sketcher.Constraint("Coincident", 0, 2, 1, 1))
sketch9.addConstraint(Sketcher.Constraint("Coincident", 1, 2, 2, 1))
sketch9.addConstraint(Sketcher.Constraint("Coincident", 2, 2, 3, 1))
sketch9.addConstraint(Sketcher.Constraint("Coincident", 3, 2, 4, 1))
sketch9.addConstraint(Sketcher.Constraint("Coincident", 4, 2, 5, 1))
sketch9.addConstraint(Sketcher.Constraint("Coincident", 5, 2, 6, 1))
sketch9.addConstraint(Sketcher.Constraint("Coincident", 6, 2, 7, 1))
sketch9.addConstraint(Sketcher.Constraint("Coincident", 7, 2, 8, 1))
sketch9.addConstraint(Sketcher.Constraint("Coincident", 8, 2, 9, 1))
sketch9.addConstraint(Sketcher.Constraint("Coincident", 9, 2, 10, 1))
sketch9.addConstraint(Sketcher.Constraint("Coincident", 10, 2, 11, 1))
sketch9.addConstraint(Sketcher.Constraint("Coincident", 11, 2, 0, 1))
sketch9.addConstraint(Sketcher.Constraint("Vertical", 0))
sketch9.addConstraint(Sketcher.Constraint("Horizontal", 1))
sketch9.addConstraint(Sketcher.Constraint("Vertical", 2))
sketch9.addConstraint(Sketcher.Constraint("Horizontal", 3))
sketch9.addConstraint(Sketcher.Constraint("Vertical", 4))
sketch9.addConstraint(Sketcher.Constraint("Horizontal", 5))
sketch9.addConstraint(Sketcher.Constraint("Vertical", 6))
sketch9.addConstraint(Sketcher.Constraint("Horizontal", 7))
sketch9.addConstraint(Sketcher.Constraint("Vertical", 8))
sketch9.addConstraint(Sketcher.Constraint("Horizontal", 9))
sketch9.addConstraint(Sketcher.Constraint("Vertical", 10))
sketch9.addConstraint(Sketcher.Constraint("Horizontal", 11))
sketch9.addConstraint(Sketcher.Constraint("Horizontal", 5, 2, 8, 2))
sketch9.addConstraint(Sketcher.Constraint("Horizontal", 3, 2, 10, 2))
sketch9.addConstraint(Sketcher.Constraint("Vertical", 2, 2, 5, 2))
sketch9.addConstraint(Sketcher.Constraint("Vertical", 0, 2, 7, 2))
sketch9.addConstraint(Sketcher.Constraint("Equal", 5, 9))
sketch9.addConstraint(Sketcher.Constraint("Equal", 7, 4))
sketch9.addConstraint(Sketcher.Constraint("DistanceX", 1, 1, 1, 2, Q("18 mm")))
sketch9.addConstraint(Sketcher.Constraint("DistanceX", 3, 1, 3, 2, Q("523 mm")))
sketch9.addConstraint(Sketcher.Constraint("DistanceY", 0, 2, 0, 1, Q("1532 mm")))
sketch9.addConstraint(Sketcher.Constraint("DistanceY", 6, 1, 6, 2, Q("226 mm")))
sketch9.addConstraint(Sketcher.Constraint("DistanceX", 0, 2, -1, 1, Q("559 mm")))
sketch9.addConstraint(Sketcher.Constraint("DistanceY", -1, 1, 0, 2, Q("348 mm")))
sketch9.setExpression("Constraints[30]", "Params.sketch9_width")
sketch9.setExpression("Constraints[31]", "Params.sketch9_width2")
sketch9.setExpression("Constraints[32]", "Params.sketch9_height")
sketch9.setExpression("Constraints[33]", "Params.sketch9_height2")
pad7 = doc.addObject("PartDesign::Pad", "Pad006")
body6.addObject(pad7)
pad7.Profile = sketch9
pad7.Type = "UpToLast"
pad7.Reversed = True
body7 = doc.addObject("PartDesign::Body", "Body006")

sketch10 = doc.addObject("Sketcher::SketchObject", "Sketch009")
body7.addObject(sketch10)
sketch10.AttachmentSupport = (doc.getObject("XZ_Plane006"), [""])
sketch10.MapMode = "FlatFace"
sketch10.AttachmentOffset = App.Placement(V(0, 0, -250), App.Rotation())
sketch10.addGeometry(Part.LineSegment(V(-1080, 1878, 0), V(-1080, 350, 0)), False)
sketch10.addGeometry(Part.LineSegment(V(-1080, 350, 0), V(-561, 350, 0)), False)
sketch10.addGeometry(Part.LineSegment(V(-561, 350, 0), V(-561, 1878, 0)), False)
sketch10.addGeometry(Part.LineSegment(V(-561, 1878, 0), V(-1080, 1878, 0)), False)
sketch10.addConstraint(Sketcher.Constraint("Coincident", 0, 2, 1, 1))
sketch10.addConstraint(Sketcher.Constraint("Coincident", 1, 2, 2, 1))
sketch10.addConstraint(Sketcher.Constraint("Coincident", 2, 2, 3, 1))
sketch10.addConstraint(Sketcher.Constraint("Coincident", 3, 2, 0, 1))
sketch10.addConstraint(Sketcher.Constraint("Vertical", 0))
sketch10.addConstraint(Sketcher.Constraint("Horizontal", 1))
sketch10.addConstraint(Sketcher.Constraint("Vertical", 2))
sketch10.addConstraint(Sketcher.Constraint("Horizontal", 3))
sketch10.addConstraint(Sketcher.Constraint("DistanceX", 1, 1, 1, 2, Q("519 mm")))
sketch10.addConstraint(Sketcher.Constraint("DistanceY", 0, 2, 0, 1, Q("1528 mm")))
sketch10.addConstraint(Sketcher.Constraint("DistanceX", 0, 2, -1, 1, Q("1080 mm")))
sketch10.addConstraint(Sketcher.Constraint("DistanceY", -1, 1, 0, 2, Q("350 mm")))
sketch10.setExpression("Constraints[8]", "Params.sketch10_width")
sketch10.setExpression("Constraints[9]", "Params.sketch10_height")
pad8 = doc.addObject("PartDesign::Pad", "Pad007")
body7.addObject(pad8)
pad8.Profile = sketch10
pad8.setExpression("Length", "Params.pad8_length")
pad8.Reversed = True
body8 = doc.addObject("PartDesign::Body", "Body007")

sketch11 = doc.addObject("Sketcher::SketchObject", "Sketch010")
body8.addObject(sketch11)
sketch11.AttachmentSupport = (doc.getObject("XZ_Plane007"), [""])
sketch11.MapMode = "FlatFace"
sketch11.AttachmentOffset = App.Placement(V(0, 0, -250), App.Rotation())
sketch11.addGeometry(Part.LineSegment(V(-1080, 2122, 0), V(-1080, 1900, 0)), False)
sketch11.addGeometry(Part.LineSegment(V(-1080, 1900, 0), V(-561, 1900, 0)), False)
sketch11.addGeometry(Part.LineSegment(V(-561, 1900, 0), V(-561, 2122, 0)), False)
sketch11.addGeometry(Part.LineSegment(V(-561, 2122, 0), V(-1080, 2122, 0)), False)
sketch11.addConstraint(Sketcher.Constraint("Coincident", 0, 2, 1, 1))
sketch11.addConstraint(Sketcher.Constraint("Coincident", 1, 2, 2, 1))
sketch11.addConstraint(Sketcher.Constraint("Coincident", 2, 2, 3, 1))
sketch11.addConstraint(Sketcher.Constraint("Coincident", 3, 2, 0, 1))
sketch11.addConstraint(Sketcher.Constraint("Vertical", 0))
sketch11.addConstraint(Sketcher.Constraint("Horizontal", 1))
sketch11.addConstraint(Sketcher.Constraint("Vertical", 2))
sketch11.addConstraint(Sketcher.Constraint("Horizontal", 3))
sketch11.addConstraint(Sketcher.Constraint("DistanceX", 1, 1, 1, 2, Q("519 mm")))
sketch11.addConstraint(Sketcher.Constraint("DistanceY", 0, 2, 0, 1, Q("222 mm")))
sketch11.addConstraint(Sketcher.Constraint("DistanceX", 0, 2, -1, 1, Q("1080 mm")))
sketch11.addConstraint(Sketcher.Constraint("DistanceY", -1, 1, 0, 2, Q("1900 mm")))
sketch11.setExpression("Constraints[8]", "Params.sketch11_width")
sketch11.setExpression("Constraints[9]", "Params.sketch11_height")
pad9 = doc.addObject("PartDesign::Pad", "Pad008")
body8.addObject(pad9)
pad9.Profile = sketch11
pad9.setExpression("Length", "Params.pad9_length")
pad9.Reversed = True
body9 = doc.addObject("PartDesign::Body", "Body008")

sketch12 = doc.addObject("Sketcher::SketchObject", "Sketch011")
body9.addObject(sketch12)
sketch12.AttachmentSupport = (doc.getObject("XZ_Plane008"), [""])
sketch12.MapMode = "FlatFace"
sketch12.AttachmentOffset = App.Placement(V(0, 0, -250), App.Rotation())
sketch12.addGeometry(Part.LineSegment(V(-539, 2122, 0), V(-539, 1900, 0)), False)
sketch12.addGeometry(Part.LineSegment(V(-539, 1900, 0), V(-20, 1900, 0)), False)
sketch12.addGeometry(Part.LineSegment(V(-20, 1900, 0), V(-20, 2122, 0)), False)
sketch12.addGeometry(Part.LineSegment(V(-20, 2122, 0), V(-539, 2122, 0)), False)
sketch12.addConstraint(Sketcher.Constraint("Coincident", 0, 2, 1, 1))
sketch12.addConstraint(Sketcher.Constraint("Coincident", 1, 2, 2, 1))
sketch12.addConstraint(Sketcher.Constraint("Coincident", 2, 2, 3, 1))
sketch12.addConstraint(Sketcher.Constraint("Coincident", 3, 2, 0, 1))
sketch12.addConstraint(Sketcher.Constraint("Vertical", 0))
sketch12.addConstraint(Sketcher.Constraint("Horizontal", 1))
sketch12.addConstraint(Sketcher.Constraint("Vertical", 2))
sketch12.addConstraint(Sketcher.Constraint("Horizontal", 3))
sketch12.addConstraint(Sketcher.Constraint("DistanceX", 1, 1, 1, 2, Q("519 mm")))
sketch12.addConstraint(Sketcher.Constraint("DistanceY", 0, 2, 0, 1, Q("222 mm")))
sketch12.addConstraint(Sketcher.Constraint("DistanceX", 0, 2, -1, 1, Q("539 mm")))
sketch12.addConstraint(Sketcher.Constraint("DistanceY", -1, 1, 0, 2, Q("1900 mm")))
sketch12.setExpression("Constraints[8]", "Params.sketch12_width")
sketch12.setExpression("Constraints[9]", "Params.sketch12_height")
pad10 = doc.addObject("PartDesign::Pad", "Pad009")
body9.addObject(pad10)
pad10.Profile = sketch12
pad10.setExpression("Length", "Params.pad10_length")
pad10.Reversed = True
body10 = doc.addObject("PartDesign::Body", "Body009")

sketch13 = doc.addObject("Sketcher::SketchObject", "Sketch012")
body10.addObject(sketch13)
sketch13.AttachmentSupport = (doc.getObject("XZ_Plane009"), [""])
sketch13.MapMode = "FlatFace"
sketch13.AttachmentOffset = App.Placement(V(0, 0, -250), App.Rotation())
sketch13.addGeometry(Part.LineSegment(V(-539, 1878, 0), V(-539, 350, 0)), False)
sketch13.addGeometry(Part.LineSegment(V(-539, 350, 0), V(-20, 350, 0)), False)
sketch13.addGeometry(Part.LineSegment(V(-20, 350, 0), V(-20, 1878, 0)), False)
sketch13.addGeometry(Part.LineSegment(V(-20, 1878, 0), V(-539, 1878, 0)), False)
sketch13.addConstraint(Sketcher.Constraint("Coincident", 0, 2, 1, 1))
sketch13.addConstraint(Sketcher.Constraint("Coincident", 1, 2, 2, 1))
sketch13.addConstraint(Sketcher.Constraint("Coincident", 2, 2, 3, 1))
sketch13.addConstraint(Sketcher.Constraint("Coincident", 3, 2, 0, 1))
sketch13.addConstraint(Sketcher.Constraint("Vertical", 0))
sketch13.addConstraint(Sketcher.Constraint("Horizontal", 1))
sketch13.addConstraint(Sketcher.Constraint("Vertical", 2))
sketch13.addConstraint(Sketcher.Constraint("Horizontal", 3))
sketch13.addConstraint(Sketcher.Constraint("DistanceX", 1, 1, 1, 2, Q("519 mm")))
sketch13.addConstraint(Sketcher.Constraint("DistanceY", 0, 2, 0, 1, Q("1528 mm")))
sketch13.addConstraint(Sketcher.Constraint("DistanceX", 0, 2, -1, 1, Q("539 mm")))
sketch13.addConstraint(Sketcher.Constraint("DistanceY", -1, 1, 0, 2, Q("350 mm")))
sketch13.setExpression("Constraints[8]", "Params.sketch13_width")
sketch13.setExpression("Constraints[9]", "Params.sketch13_height")
pad11 = doc.addObject("PartDesign::Pad", "Pad010")
body10.addObject(pad11)
pad11.Profile = sketch13
pad11.setExpression("Length", "Params.pad11_length")
pad11.Reversed = True
mirroring.Visibility = False

doc.recompute()
